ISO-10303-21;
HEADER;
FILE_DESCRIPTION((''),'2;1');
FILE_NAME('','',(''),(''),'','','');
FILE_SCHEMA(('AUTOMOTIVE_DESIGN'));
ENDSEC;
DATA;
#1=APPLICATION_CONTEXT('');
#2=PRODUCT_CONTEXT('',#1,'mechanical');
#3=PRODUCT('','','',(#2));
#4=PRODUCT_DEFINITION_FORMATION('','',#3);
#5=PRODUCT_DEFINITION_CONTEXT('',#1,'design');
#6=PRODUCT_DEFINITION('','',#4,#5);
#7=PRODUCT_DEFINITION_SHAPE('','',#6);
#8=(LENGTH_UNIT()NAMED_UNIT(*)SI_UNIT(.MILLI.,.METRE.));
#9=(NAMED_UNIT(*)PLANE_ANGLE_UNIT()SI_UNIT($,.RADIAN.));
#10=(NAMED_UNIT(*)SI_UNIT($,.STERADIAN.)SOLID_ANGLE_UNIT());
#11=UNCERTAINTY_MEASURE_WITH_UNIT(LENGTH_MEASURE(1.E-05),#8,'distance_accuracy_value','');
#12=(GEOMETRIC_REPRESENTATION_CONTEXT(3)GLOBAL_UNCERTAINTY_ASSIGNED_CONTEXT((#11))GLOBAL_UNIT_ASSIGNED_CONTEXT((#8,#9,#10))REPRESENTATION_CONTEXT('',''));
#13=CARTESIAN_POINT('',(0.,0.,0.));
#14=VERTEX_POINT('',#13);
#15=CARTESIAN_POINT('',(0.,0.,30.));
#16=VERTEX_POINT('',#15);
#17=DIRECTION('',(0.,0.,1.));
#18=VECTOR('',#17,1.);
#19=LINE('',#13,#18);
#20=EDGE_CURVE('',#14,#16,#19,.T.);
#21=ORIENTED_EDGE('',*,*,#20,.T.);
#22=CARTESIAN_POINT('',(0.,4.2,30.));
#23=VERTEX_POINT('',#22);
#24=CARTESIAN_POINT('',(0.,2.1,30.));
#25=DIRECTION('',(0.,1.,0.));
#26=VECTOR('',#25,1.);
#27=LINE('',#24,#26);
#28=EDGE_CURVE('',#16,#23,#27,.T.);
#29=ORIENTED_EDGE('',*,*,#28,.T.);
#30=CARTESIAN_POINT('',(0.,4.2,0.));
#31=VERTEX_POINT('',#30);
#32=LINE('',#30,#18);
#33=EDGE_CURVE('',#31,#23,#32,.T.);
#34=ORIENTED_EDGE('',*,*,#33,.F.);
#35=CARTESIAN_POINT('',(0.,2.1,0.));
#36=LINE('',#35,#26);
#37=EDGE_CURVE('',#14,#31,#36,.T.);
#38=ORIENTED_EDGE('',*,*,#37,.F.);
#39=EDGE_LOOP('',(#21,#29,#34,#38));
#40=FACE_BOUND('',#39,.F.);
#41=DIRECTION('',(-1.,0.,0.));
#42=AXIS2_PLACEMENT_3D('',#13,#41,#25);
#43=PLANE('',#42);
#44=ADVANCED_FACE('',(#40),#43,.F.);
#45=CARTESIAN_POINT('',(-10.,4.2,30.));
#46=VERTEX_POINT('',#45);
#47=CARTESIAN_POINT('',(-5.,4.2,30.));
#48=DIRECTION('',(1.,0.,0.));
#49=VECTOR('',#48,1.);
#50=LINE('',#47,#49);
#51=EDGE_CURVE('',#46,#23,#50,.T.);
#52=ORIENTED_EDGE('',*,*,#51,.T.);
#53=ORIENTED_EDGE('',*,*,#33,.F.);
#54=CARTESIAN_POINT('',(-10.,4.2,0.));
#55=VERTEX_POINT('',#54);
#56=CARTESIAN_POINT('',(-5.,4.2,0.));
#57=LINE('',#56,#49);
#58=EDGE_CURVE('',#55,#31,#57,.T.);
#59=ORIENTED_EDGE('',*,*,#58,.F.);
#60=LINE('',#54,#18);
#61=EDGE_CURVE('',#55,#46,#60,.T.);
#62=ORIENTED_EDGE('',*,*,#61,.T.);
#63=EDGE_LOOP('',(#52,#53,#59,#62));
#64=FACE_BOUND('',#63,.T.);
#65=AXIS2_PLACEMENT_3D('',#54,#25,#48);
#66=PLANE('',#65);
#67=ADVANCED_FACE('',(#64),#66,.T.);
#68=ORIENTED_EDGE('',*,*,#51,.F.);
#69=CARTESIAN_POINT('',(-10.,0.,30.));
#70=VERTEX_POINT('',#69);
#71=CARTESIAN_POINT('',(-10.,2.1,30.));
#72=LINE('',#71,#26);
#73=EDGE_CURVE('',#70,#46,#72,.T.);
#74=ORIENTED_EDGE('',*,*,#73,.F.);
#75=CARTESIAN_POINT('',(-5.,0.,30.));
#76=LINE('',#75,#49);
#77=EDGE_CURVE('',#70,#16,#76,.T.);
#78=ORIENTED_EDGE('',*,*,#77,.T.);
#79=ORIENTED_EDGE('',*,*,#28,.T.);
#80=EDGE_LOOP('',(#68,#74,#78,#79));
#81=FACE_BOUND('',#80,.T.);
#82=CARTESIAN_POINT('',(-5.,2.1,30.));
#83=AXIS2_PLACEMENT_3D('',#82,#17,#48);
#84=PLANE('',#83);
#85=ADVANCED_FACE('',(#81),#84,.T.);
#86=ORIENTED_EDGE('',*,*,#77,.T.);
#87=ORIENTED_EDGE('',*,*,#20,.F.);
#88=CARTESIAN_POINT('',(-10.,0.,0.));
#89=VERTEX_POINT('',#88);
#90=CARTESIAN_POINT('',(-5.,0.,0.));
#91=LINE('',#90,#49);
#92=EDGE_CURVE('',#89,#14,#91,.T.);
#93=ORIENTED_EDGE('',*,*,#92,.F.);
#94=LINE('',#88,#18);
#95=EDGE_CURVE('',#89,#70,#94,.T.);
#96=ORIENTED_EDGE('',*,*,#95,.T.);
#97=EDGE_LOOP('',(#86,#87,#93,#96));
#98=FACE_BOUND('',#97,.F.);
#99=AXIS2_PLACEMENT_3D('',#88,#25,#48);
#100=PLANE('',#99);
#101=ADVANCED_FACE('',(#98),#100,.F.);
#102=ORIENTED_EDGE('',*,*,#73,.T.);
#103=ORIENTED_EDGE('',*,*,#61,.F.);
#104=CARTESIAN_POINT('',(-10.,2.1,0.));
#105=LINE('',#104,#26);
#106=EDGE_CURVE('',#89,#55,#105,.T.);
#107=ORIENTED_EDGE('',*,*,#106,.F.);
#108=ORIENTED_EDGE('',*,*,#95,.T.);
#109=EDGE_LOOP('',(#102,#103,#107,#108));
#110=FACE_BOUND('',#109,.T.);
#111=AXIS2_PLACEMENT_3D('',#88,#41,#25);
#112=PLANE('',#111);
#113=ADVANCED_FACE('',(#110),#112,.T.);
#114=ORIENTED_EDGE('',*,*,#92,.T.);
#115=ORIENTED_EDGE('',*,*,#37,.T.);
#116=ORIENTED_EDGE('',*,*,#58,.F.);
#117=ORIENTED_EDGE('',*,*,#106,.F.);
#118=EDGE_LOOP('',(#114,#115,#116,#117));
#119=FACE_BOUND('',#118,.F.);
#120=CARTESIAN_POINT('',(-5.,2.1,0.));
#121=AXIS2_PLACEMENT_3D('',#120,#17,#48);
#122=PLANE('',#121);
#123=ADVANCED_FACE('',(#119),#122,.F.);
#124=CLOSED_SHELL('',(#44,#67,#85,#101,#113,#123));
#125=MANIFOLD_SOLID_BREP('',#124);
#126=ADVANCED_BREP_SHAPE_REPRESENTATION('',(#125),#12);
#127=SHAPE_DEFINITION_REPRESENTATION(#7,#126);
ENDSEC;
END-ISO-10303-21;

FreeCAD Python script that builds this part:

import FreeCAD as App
import Part
import Sketcher
from FreeCAD import Vector
Q = App.Units.Quantity

doc = App.newDocument("Part")
body = doc.addObject("PartDesign::Body", "Body")

sketch1 = body.newObject("Sketcher::SketchObject", "Sketch")
sketch1.AttachmentSupport = (doc.getObject("XY_Plane"), [""])
sketch1.MapMode = "FlatFace"
sketch1.addGeometry([
    Part.LineSegment(Vector(-10, 4.2, 0), Vector(-10, 0, 0)),
    Part.LineSegment(Vector(-10, 0, 0), Vector(0, 0, 0)),
    Part.LineSegment(Vector(0, 0, 0), Vector(0, 4.2, 0)),
    Part.LineSegment(Vector(0, 4.2, 0), Vector(-10, 4.2, 0)),
], False)
sketch1.addConstraint([
    Sketcher.Constraint("Coincident", 0, 2, 1, 1),
    Sketcher.Constraint("Coincident", 1, 2, 2, 1),
    Sketcher.Constraint("Coincident", 2, 2, 3, 1),
    Sketcher.Constraint("Coincident", 3, 2, 0, 1),
    Sketcher.Constraint("Vertical", 0),
    Sketcher.Constraint("Horizontal", 1),
    Sketcher.Constraint("Vertical", 2),
    Sketcher.Constraint("Horizontal", 3),
    Sketcher.Constraint("Coincident", 1, 2, -1, 1),
    Sketcher.Constraint("DistanceX", 1, 1, 1, 2, Q("10 mm")),
    Sketcher.Constraint("DistanceY", 0, 2, 0, 1, Q("4.2 mm")),
])
pad1 = body.newObject("PartDesign::Pad", "Pad")
pad1.Profile = sketch1
pad1.Length = 30

doc.recompute()
